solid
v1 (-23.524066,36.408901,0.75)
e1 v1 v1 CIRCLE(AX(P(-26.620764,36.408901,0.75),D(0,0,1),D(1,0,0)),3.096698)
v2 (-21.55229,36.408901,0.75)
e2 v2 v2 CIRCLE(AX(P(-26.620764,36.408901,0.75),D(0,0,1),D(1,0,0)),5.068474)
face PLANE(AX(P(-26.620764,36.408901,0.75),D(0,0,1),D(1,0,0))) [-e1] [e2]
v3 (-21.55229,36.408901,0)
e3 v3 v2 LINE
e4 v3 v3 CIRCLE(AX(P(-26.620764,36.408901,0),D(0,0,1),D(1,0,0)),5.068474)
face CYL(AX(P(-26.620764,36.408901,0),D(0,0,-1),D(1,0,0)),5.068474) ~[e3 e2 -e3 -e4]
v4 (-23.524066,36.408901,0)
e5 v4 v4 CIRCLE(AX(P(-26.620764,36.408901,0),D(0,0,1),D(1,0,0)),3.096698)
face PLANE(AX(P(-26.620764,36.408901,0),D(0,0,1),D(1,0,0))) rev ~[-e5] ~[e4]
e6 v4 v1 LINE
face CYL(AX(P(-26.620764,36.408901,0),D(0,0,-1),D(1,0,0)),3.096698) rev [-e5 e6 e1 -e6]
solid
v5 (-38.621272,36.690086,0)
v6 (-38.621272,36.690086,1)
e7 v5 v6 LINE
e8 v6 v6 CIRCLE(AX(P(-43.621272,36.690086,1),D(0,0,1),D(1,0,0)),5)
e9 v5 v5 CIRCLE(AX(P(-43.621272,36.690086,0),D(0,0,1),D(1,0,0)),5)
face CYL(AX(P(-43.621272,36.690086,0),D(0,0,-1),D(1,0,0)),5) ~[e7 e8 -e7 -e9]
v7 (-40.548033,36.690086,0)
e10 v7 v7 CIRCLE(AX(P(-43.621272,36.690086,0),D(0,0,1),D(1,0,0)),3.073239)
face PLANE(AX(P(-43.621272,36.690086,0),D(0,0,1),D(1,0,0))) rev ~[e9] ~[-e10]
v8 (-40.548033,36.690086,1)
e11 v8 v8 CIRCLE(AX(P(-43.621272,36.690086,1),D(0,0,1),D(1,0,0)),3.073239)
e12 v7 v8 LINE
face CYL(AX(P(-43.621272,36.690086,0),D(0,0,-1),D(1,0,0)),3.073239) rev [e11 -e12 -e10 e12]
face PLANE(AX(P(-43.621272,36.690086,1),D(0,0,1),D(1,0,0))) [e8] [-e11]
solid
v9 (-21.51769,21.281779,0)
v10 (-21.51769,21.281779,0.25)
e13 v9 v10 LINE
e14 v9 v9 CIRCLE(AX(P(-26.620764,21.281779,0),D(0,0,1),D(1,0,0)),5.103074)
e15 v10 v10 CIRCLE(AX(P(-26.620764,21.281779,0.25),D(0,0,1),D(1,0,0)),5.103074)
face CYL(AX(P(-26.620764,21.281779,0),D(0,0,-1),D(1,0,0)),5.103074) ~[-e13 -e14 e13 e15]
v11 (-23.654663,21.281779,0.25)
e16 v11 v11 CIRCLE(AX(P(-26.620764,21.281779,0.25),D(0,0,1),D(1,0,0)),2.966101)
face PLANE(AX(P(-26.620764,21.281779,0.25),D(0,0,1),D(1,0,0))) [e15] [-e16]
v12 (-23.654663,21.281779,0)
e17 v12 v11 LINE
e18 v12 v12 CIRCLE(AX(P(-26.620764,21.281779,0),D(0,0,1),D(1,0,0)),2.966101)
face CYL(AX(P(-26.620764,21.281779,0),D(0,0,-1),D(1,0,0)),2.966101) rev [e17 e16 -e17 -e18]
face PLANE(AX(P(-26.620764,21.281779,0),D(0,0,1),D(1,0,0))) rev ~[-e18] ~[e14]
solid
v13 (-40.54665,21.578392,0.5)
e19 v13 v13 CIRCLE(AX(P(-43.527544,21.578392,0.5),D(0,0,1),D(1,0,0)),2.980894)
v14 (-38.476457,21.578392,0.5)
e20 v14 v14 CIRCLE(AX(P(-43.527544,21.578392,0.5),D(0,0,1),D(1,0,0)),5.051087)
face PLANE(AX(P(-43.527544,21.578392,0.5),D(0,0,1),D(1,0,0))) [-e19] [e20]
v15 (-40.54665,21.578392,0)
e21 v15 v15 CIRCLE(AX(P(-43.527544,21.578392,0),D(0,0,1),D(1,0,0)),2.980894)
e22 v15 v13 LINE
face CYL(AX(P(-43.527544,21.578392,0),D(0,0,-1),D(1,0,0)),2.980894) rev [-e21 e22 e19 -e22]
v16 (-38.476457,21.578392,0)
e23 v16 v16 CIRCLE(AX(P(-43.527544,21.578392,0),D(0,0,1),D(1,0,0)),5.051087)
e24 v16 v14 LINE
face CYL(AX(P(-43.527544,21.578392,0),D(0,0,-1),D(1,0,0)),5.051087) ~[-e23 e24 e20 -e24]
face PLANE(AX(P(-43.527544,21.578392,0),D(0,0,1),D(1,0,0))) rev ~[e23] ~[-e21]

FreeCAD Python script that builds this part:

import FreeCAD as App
import Part
import Sketcher

doc = App.newDocument("Part")
body = doc.addObject("PartDesign::Body", "Body")

# Sketch on XY plane
sketch1 = body.newObject("Sketcher::SketchObject", "Sketch")
sketch1.AttachmentSupport = (doc.getObject("XY_Plane"), [""])
sketch1.MapMode = "FlatFace"
sketch1.addGeometry([
    Part.Circle(App.Vector(-43.6, 36.7, 0), App.Vector(0, 0, 1), 5),
    Part.Circle(App.Vector(-43.6, 36.7, 0), App.Vector(0, 0, 1), 3.1),
], False)
sketch1.addConstraint([
    Sketcher.Constraint("Coincident", 1, 3, 0, 3),
    Sketcher.Constraint("Diameter", 0, 10.0),
    Sketcher.Constraint("Diameter", 1, 6.146478),
    Sketcher.Constraint("DistanceX", 0, 3, -1, 1, 43.621272),
    Sketcher.Constraint("DistanceY", -1, 1, 0, 3, 36.690086),
])
pad1 = body.newObject("PartDesign::Pad", "Pad")
pad1.Profile = sketch1
pad1.Length = 1
body2 = doc.addObject("PartDesign::Body", "Body001")

# Sketch on XY plane
sketch2 = body2.newObject("Sketcher::SketchObject", "Sketch001")
sketch2.AttachmentSupport = (doc.getObject("XY_Plane001"), [""])
sketch2.MapMode = "FlatFace"
sketch2.addGeometry([
    Part.Circle(App.Vector(-26.6, 36.4, 0), App.Vector(0, 0, 1), 5.1),
    Part.Circle(App.Vector(-26.6, 36.4, 0), App.Vector(0, 0, 1), 3.1),
], False)
sketch2.addConstraint([
    Sketcher.Constraint("Coincident", 1, 3, 0, 3),
    Sketcher.Constraint("Diameter", 0, 10.136948),
    Sketcher.Constraint("Diameter", 1, 6.193396),
    Sketcher.Constraint("DistanceY", -1, 1, 0, 3, 36.408901),
    Sketcher.Constraint("DistanceX", 0, 3, -1, 1, 26.620764),
])
pad2 = body2.newObject("PartDesign::Pad", "Pad001")
pad2.Profile = sketch2
pad2.Length = 0.75
body3 = doc.addObject("PartDesign::Body", "Body002")

# Sketch on XY plane
sketch3 = body3.newObject("Sketcher::SketchObject", "Sketch002")
sketch3.AttachmentSupport = (doc.getObject("XY_Plane002"), [""])
sketch3.MapMode = "FlatFace"
sketch3.addGeometry([
    Part.Circle(App.Vector(-43.5, 21.6, 0), App.Vector(0, 0, 1), 5.1),
    Part.Circle(App.Vector(-43.5, 21.6, 0), App.Vector(0, 0, 1), 3),
], False)
sketch3.addConstraint([
    Sketcher.Constraint("Coincident", 1, 3, 0, 3),
    Sketcher.Constraint("Diameter", 1, 5.961788),
    Sketcher.Constraint("Diameter", 0, 10.102174),
    Sketcher.Constraint("DistanceX", 0, 3, -1, 1, 43.527544),
    Sketcher.Constraint("DistanceY", -1, 1, 0, 3, 21.578392),
])
pad3 = body3.newObject("PartDesign::Pad", "Pad002")
pad3.Profile = sketch3
pad3.Length = 0.5
body4 = doc.addObject("PartDesign::Body", "Body003")

# Sketch on XY plane
sketch4 = body4.newObject("Sketcher::SketchObject", "Sketch003")
sketch4.AttachmentSupport = (doc.getObject("XY_Plane003"), [""])
sketch4.MapMode = "FlatFace"
sketch4.addGeometry([
    Part.Circle(App.Vector(-26.6, 21.3, 0), App.Vector(0, 0, 1), 5.1),
    Part.Circle(App.Vector(-26.6, 21.3, 0), App.Vector(0, 0, 1), 3),
], False)
sketch4.addConstraint([
    Sketcher.Constraint("Coincident", 1, 3, 0, 3),
    Sketcher.Constraint("Diameter", 0, 10.206148),
    Sketcher.Constraint("Diameter", 1, 5.932202),
    Sketcher.Constraint("DistanceY", -1, 1, 0, 3, 21.281779),
    Sketcher.Constraint("DistanceX", 0, 3, -1, 1, 26.620764),
])
pad4 = body4.newObject("PartDesign::Pad", "Pad003")
pad4.Profile = sketch4
pad4.Length = 0.25

doc.recompute()
